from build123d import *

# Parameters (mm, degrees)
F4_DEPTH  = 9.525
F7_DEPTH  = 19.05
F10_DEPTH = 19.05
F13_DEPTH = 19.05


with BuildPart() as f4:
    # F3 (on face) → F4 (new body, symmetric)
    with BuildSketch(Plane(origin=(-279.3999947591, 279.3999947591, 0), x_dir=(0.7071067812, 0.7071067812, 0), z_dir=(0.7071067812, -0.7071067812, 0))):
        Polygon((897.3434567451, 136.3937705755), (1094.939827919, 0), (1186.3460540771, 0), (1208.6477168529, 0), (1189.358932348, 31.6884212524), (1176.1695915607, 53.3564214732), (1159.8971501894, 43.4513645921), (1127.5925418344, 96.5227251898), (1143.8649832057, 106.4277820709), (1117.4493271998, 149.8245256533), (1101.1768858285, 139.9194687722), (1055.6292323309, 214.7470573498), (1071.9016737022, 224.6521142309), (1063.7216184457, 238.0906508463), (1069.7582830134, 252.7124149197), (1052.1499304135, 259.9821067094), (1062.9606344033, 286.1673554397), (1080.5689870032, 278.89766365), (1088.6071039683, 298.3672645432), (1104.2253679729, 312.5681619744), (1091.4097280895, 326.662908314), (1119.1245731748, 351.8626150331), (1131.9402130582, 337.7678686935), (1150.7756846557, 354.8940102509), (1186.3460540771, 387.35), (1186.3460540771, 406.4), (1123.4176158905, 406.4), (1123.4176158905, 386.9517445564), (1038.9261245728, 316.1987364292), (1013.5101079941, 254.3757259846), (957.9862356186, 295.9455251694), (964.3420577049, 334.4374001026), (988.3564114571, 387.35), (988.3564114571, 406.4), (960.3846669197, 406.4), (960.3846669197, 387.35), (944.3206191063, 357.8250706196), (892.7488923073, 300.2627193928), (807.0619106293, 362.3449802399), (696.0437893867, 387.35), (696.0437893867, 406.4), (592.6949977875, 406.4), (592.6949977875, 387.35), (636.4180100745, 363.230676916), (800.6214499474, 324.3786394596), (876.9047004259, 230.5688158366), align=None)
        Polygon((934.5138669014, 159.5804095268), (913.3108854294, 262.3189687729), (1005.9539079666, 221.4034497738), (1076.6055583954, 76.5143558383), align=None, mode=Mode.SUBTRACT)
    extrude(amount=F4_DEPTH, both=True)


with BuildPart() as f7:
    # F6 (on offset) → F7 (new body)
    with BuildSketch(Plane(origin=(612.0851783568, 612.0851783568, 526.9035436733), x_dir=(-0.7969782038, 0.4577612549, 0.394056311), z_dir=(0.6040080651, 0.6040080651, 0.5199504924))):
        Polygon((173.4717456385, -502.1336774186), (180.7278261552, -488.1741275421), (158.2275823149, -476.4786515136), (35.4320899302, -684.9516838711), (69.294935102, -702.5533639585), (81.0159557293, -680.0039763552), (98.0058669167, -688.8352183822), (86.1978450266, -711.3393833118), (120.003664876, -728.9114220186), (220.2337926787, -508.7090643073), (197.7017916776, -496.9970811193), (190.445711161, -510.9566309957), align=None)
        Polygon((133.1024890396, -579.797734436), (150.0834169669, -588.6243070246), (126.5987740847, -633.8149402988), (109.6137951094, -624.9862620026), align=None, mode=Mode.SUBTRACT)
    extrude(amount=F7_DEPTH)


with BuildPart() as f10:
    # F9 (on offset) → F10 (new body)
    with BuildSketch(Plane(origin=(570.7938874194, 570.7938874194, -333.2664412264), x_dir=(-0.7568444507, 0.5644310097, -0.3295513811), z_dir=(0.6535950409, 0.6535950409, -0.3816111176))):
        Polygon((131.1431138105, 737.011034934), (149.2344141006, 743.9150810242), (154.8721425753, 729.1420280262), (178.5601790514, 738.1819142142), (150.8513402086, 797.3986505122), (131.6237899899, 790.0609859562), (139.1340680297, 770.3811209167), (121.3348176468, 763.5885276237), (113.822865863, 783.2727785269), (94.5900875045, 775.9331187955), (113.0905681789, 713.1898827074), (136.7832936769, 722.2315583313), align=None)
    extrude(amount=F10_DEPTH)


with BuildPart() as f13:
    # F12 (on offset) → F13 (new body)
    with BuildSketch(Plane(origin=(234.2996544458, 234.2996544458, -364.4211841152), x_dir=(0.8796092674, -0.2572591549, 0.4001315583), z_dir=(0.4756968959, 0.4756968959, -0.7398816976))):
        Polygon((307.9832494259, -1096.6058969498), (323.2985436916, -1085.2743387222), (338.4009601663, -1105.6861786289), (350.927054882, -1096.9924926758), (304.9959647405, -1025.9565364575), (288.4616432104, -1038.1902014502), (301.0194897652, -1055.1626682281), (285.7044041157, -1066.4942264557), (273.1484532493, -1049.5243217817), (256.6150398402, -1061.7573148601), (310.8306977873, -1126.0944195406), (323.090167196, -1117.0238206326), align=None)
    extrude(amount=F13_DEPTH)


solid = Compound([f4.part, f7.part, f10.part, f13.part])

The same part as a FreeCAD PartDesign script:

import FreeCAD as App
import Part
import Sketcher

V = App.Vector
Q = App.Units.Quantity


def add_polygon(sketch, points):
    """Adds a closed chain of lines whose ends are joined by coincident constraints."""
    first, n = sketch.GeometryCount, len(points)
    for a, b in zip(points, points[1:] + points[:1]):
        sketch.addGeometry(Part.LineSegment(App.Vector(*a, 0), App.Vector(*b, 0)), False)
    for i in range(n):
        sketch.addConstraint(Sketcher.Constraint("Coincident", first + i, 2, first + (i + 1) % n, 1))

doc = App.newDocument("Part")
params = doc.addObject("Spreadsheet::Sheet", "Params")
for row, (alias, value) in enumerate([
    ("sketch1_height", "0.75 in"),
    ("sketch1_length", "0.75 in"),
    ("pad1_length", "0.75 in"),
    ("sketch2_length", "1.5 in"),
    ("pad2_length", "0.75 in"),
    ("pad3_length", "0.75 in"),
    ("pad4_length", "0.75 in"),
], start=1):
    params.set(f"A{row}", alias)
    params.set(f"B{row}", "=" + value)
    params.setAlias(f"B{row}", alias)

body = doc.addObject("PartDesign::Body", "Body")

# Sketch on an angled plane
sketch1 = body.newObject("Sketcher::SketchObject", "Sketch")
sketch1.Placement = App.Placement(V(-279.399995, 279.399995, 0), App.Rotation(V(0.707106781, 0.707106781, 0), V(0, 0, 0.999999999), V(0.707106781, -0.707106781, 0), "ZXY"))
add_polygon(sketch1, [(897, 136), (1095, 0), (1209, 0), (1189, 32), (1176, 53), (1160, 43), (1128, 97), (1144, 106), (1117, 150), (1101, 140), (1056, 215), (1072, 225), (1064, 238), (1070, 253), (1052, 260), (1063, 286), (1081, 279), (1089, 298), (1104, 313), (1091, 327), (1119, 352), (1132, 338), (1151, 355), (1186, 387), (1186, 406), (1123, 406), (1123, 387), (1039, 316), (1014, 254), (958, 296), (964, 334), (988, 387), (988, 406), (960, 406), (960, 387), (944, 358), (893, 300), (807, 362), (696, 387), (696, 406), (593, 406), (593, 387), (636, 363), (801, 324), (877, 231)])  # lines 0-44
add_polygon(sketch1, [(1077, 77), (935, 160), (913, 262), (1006, 221)])  # lines 45-48
sketch1.addConstraint([
    Sketcher.Constraint("Horizontal", 1),
    Sketcher.Constraint("Vertical", 23),
    Sketcher.Constraint("Horizontal", 24),
    Sketcher.Constraint("Vertical", 25),
    Sketcher.Constraint("Vertical", 31),
    Sketcher.Constraint("Horizontal", 32),
    Sketcher.Constraint("Vertical", 33),
    Sketcher.Constraint("Vertical", 38),
    Sketcher.Constraint("Horizontal", 39),
    Sketcher.Constraint("Vertical", 40),
    Sketcher.Constraint("PointOnObject", 0, 2, -1),
    Sketcher.Constraint("Parallel", 2, 3),
    Sketcher.Constraint("Perpendicular", 3, 4),
    Sketcher.Constraint("Perpendicular", 4, 5),
    Sketcher.Constraint("Perpendicular", 5, 6),
    Sketcher.Constraint("Perpendicular", 6, 7),
    Sketcher.Constraint("Perpendicular", 7, 8),
    Sketcher.Constraint("Perpendicular", 8, 9),
    Sketcher.Constraint("Perpendicular", 9, 10),
    Sketcher.Constraint("Perpendicular", 10, 11),
    Sketcher.Constraint("Perpendicular", 12, 13),
    Sketcher.Constraint("Perpendicular", 13, 14),
    Sketcher.Constraint("Perpendicular", 14, 15),
    Sketcher.Constraint("Perpendicular", 15, 16),
    Sketcher.Constraint("Perpendicular", 17, 18),
    Sketcher.Constraint("Perpendicular", 18, 19),
    Sketcher.Constraint("Perpendicular", 19, 20),
    Sketcher.Constraint("Perpendicular", 20, 21),
    Sketcher.Constraint("Horizontal", 22, 2, 30, 2),
    Sketcher.Constraint("Horizontal", 24, 2, 31, 2),
    Sketcher.Constraint("Horizontal", 30, 2, 33, 2),
    Sketcher.Constraint("Horizontal", 33, 2, 37, 2),
    Sketcher.Constraint("Horizontal", 32, 2, 38, 2),
    Sketcher.Constraint("Horizontal", 37, 2, 40, 2),
    Sketcher.Constraint("Equal", 4, 6),
    Sketcher.Constraint("Equal", 6, 8),
    Sketcher.Constraint("Equal", 8, 10),
    Sketcher.Constraint("Equal", 10, 13),
    Sketcher.Constraint("Equal", 13, 15),
    Sketcher.Constraint("Equal", 15, 18),
    Sketcher.Constraint("Equal", 18, 20),
    Sketcher.Constraint("DistanceY", -1, 1, 23, 2, Q("16 in")),
    Sketcher.Constraint("DistanceY", 23, 1, 23, 2, Q("0.75 in")),
    Sketcher.Constraint("Distance", 4, Q("0.75 in")),
    Sketcher.Constraint("DistanceX", 12, 2, 7, 2, Q("1.8776002 in")),
    Sketcher.Constraint("DistanceY", 43, 2, 42, 2, Q("3.6933001 in")),
    Sketcher.Constraint("DistanceY", 47, 2, 10, 2, Q("0.1279002 in")),
    Sketcher.Constraint("Distance", 48, Q("161.1971 mm")),
    Sketcher.Constraint("DistanceX", 1, 1, 1, 2, Q("113.707889 mm")),
    Sketcher.Constraint("DistanceX", 24, 2, 24, 1, Q("62.928438 mm")),
    Sketcher.Constraint("DistanceX", 39, 2, 39, 1, Q("103.348792 mm")),
    Sketcher.Constraint("DistanceY", -1, 1, 29, 2, Q("334.4374 mm")),
    Sketcher.Constraint("DistanceX", -1, 1, 43, 2, Q("876.9047 mm")),
    Sketcher.Constraint("DistanceY", 2, 2, 3, 2, Q("21.668 mm")),
    Sketcher.Constraint("DistanceY", 5, 2, 7, 2, Q("53.3018 mm")),
    Sketcher.Constraint("DistanceY", 10, 2, 12, 2, Q("28.060301 mm")),
    Sketcher.Constraint("DistanceX", 13, 2, 9, 2, Q("3.479302 mm")),
    Sketcher.Constraint("DistanceY", 9, 2, 14, 2, Q("71.420298 mm")),
    Sketcher.Constraint("DistanceY", 15, 2, 16, 2, Q("19.469601 mm")),
    Sketcher.Constraint("DistanceY", 15, 2, 17, 2, Q("33.670498 mm")),
    Sketcher.Constraint("DistanceY", 18, 2, 21, 2, Q("28.231102 mm")),
    Sketcher.Constraint("DistanceY", 27, 2, 28, 2, Q("41.569799 mm")),
    Sketcher.Constraint("DistanceX", 28, 2, 14, 2, Q("104.974399 mm")),
    Sketcher.Constraint("DistanceX", 41, 2, 36, 2, Q("170.6439 mm")),
    Sketcher.Constraint("DistanceY", 46, 2, 34, 2, Q("95.506102 mm")),
    Sketcher.Constraint("DistanceX", 47, 2, 27, 2, Q("7.5562 mm")),
    Sketcher.Constraint("DistanceY", 47, 2, 11, 2, Q("16.687201 mm")),
    Sketcher.Constraint("Distance", 0, Q("240.099118 mm")),
    Sketcher.Constraint("Distance", 2, Q("37.097348 mm")),
    Sketcher.Constraint("Distance", 3, Q("25.366532 mm")),
    Sketcher.Constraint("Distance", 5, Q("62.130162 mm")),
    Sketcher.Constraint("Distance", 19, Q("37.458482 mm")),
    Sketcher.Constraint("Distance", 21, Q("25.45741 mm")),
    Sketcher.Constraint("Distance", 26, Q("110.203449 mm")),
    Sketcher.Constraint("Distance", 35, Q("77.285621 mm")),
    Sketcher.Constraint("Distance", 37, Q("113.799272 mm")),
    Sketcher.Constraint("Distance", 44, Q("96.367432 mm")),
    Sketcher.Constraint("Distance", 46, Q("104.90366 mm")),
    Sketcher.Constraint("DistanceX", 32, 2, 32, 1, Q("27.971745 mm")),
    Sketcher.Constraint("DistanceY", 25, 2, 25, 1, Q("19.448255 mm")),
    Sketcher.Constraint("DistanceX", -1, 1, 2, 2, Q("1189.358932 mm")),
    Sketcher.Constraint("DistanceX", -1, 1, 30, 2, Q("988.356411 mm")),
    Sketcher.Constraint("DistanceX", -1, 1, 34, 2, Q("944.320619 mm")),
    Sketcher.Constraint("DistanceY", -1, 1, 34, 2, Q("357.82507 mm")),
    Sketcher.Constraint("DistanceX", -1, 1, 35, 2, Q("892.748892 mm")),
    Sketcher.Constraint("DistanceX", -1, 1, 36, 2, Q("807.06191 mm")),
    Sketcher.Constraint("DistanceY", -1, 1, 36, 2, Q("362.34498 mm")),
    Sketcher.Constraint("DistanceX", -1, 1, 42, 2, Q("800.62145 mm")),
    Sketcher.Constraint("DistanceY", -1, 1, 42, 2, Q("324.378639 mm")),
    Sketcher.Constraint("DistanceY", -1, 1, 45, 2, Q("159.580409 mm")),
    Sketcher.Constraint("DistanceX", 21, 2, 22, 2, Q("35.570369 mm")),
    Sketcher.Constraint("DistanceX", 26, 2, 14, 2, Q("24.03451 mm")),
    Sketcher.Constraint("DistanceY", 27, 2, 13, 2, Q("5.606381 mm")),
    Sketcher.Constraint("DistanceX", 27, 2, 11, 2, Q("50.21151 mm")),
    Sketcher.Constraint("DistanceX", 29, 2, 27, 2, Q("49.16805 mm")),
    Sketcher.Constraint("DistanceX", 44, 2, 45, 2, Q("37.17041 mm")),
    Sketcher.Constraint("DistanceY", 48, 2, 5, 2, Q("20.008369 mm")),
    Sketcher.Constraint("Distance", 41, Q("49.934392 mm")),
])
sketch1.setExpression("Constraints[91]", "Params.sketch1_height")
sketch1.setExpression("Constraints[92]", "Params.sketch1_length")
pad1 = body.newObject("PartDesign::Pad", "Pad")
pad1.Profile = sketch1
pad1.setExpression("Length", "Params.pad1_length")
pad1.Midplane = True
body2 = doc.addObject("PartDesign::Body", "Body001")

# Sketch on an angled plane
sketch2 = body2.newObject("Sketcher::SketchObject", "Sketch001")
sketch2.Placement = App.Placement(V(612.085178, 612.085178, 526.903544), App.Rotation(V(-0.796978204, 0.457761255, 0.394056311), V(0, -0.652402399, 0.757872753), V(0.604008065, 0.604008065, 0.519950492), "ZXY"))
add_polygon(sketch2, [(173, -502), (181, -488), (158, -476), (35, -685), (69, -703), (81, -680), (98, -689), (86, -711), (120, -729), (220, -509), (198, -497), (190, -511)])  # lines 0-11
add_polygon(sketch2, [(110, -625), (133, -580), (150, -589), (127, -634)])  # lines 12-15
sketch2.addConstraint([
    Sketcher.Constraint("Perpendicular", 0, 1),
    Sketcher.Constraint("Parallel", 1, 3),
    Sketcher.Constraint("Perpendicular", 3, 4),
    Sketcher.Constraint("Perpendicular", 4, 5),
    Sketcher.Constraint("Parallel", 5, 7),
    Sketcher.Constraint("Parallel", 7, 9),
    Sketcher.Constraint("Perpendicular", 9, 10),
    Sketcher.Constraint("Perpendicular", 10, 11),
    Sketcher.Constraint("Perpendicular", 11, 12),
    Sketcher.Constraint("Perpendicular", 12, 13),
    Sketcher.Constraint("Parallel", 13, 15),
    Sketcher.Constraint("Equal", 0, 10),
    Sketcher.Constraint("Distance", 7, Q("1.5 in")),
    Sketcher.Constraint("Distance", 0, Q("0.6194 in")),
    Sketcher.Constraint("DistanceY", 7, 2, -1, 1, Q("28.6973001 in")),
    Sketcher.Constraint("DistanceX", 15, 2, 14, 2, Q("0.6687 in")),
    Sketcher.Constraint("Distance", 8, Q("241.940399 mm")),
    Sketcher.Constraint("DistanceY", 6, 2, 2, 2, Q("26.387699 mm")),
    Sketcher.Constraint("DistanceX", 9, 2, 8, 2, Q("22.532001 mm")),
    Sketcher.Constraint("Distance", 3, Q("38.164269 mm")),
    Sketcher.Constraint("Distance", 4, Q("25.413721 mm")),
    Sketcher.Constraint("Distance", 6, Q("25.41391 mm")),
    Sketcher.Constraint("Distance", 11, Q("19.130081 mm")),
    Sketcher.Constraint("Distance", 13, Q("19.137928 mm")),
    Sketcher.Constraint("DistanceY", 1, 2, -1, 1, Q("476.478651 mm")),
    Sketcher.Constraint("DistanceX", -1, 1, 2, 2, Q("35.43209 mm")),
    Sketcher.Constraint("DistanceY", 5, 2, -1, 1, Q("688.835218 mm")),
    Sketcher.Constraint("DistanceX", -1, 1, 9, 2, Q("197.701792 mm")),
    Sketcher.Constraint("DistanceY", 9, 2, -1, 1, Q("496.997081 mm")),
    Sketcher.Constraint("DistanceX", -1, 1, 12, 2, Q("133.102489 mm")),
    Sketcher.Constraint("DistanceY", 14, 2, -1, 1, Q("633.81494 mm")),
    Sketcher.Constraint("DistanceY", 13, 2, 11, 2, Q("86.49063 mm")),
])
sketch2.setExpression("Constraints[28]", "Params.sketch2_length")
pad2 = body2.newObject("PartDesign::Pad", "Pad001")
pad2.Profile = sketch2
pad2.setExpression("Length", "Params.pad2_length")
body3 = doc.addObject("PartDesign::Body", "Body002")

# Sketch on an angled plane
sketch3 = body3.newObject("Sketcher::SketchObject", "Sketch002")
sketch3.Placement = App.Placement(V(570.793887, 570.793887, -333.266441), App.Rotation(V(-0.756844451, 0.56443101, -0.329551381), V(0, 0.504213405, 0.863579089), V(0.653595041, 0.653595041, -0.381611118), "ZXY"))
add_polygon(sketch3, [(131, 737), (149, 744), (155, 729), (179, 738), (151, 797), (132, 790), (139, 770), (121, 764), (114, 783), (95, 776), (113, 713), (137, 722)])  # lines 0-11
sketch3.addConstraint([
    Sketcher.Constraint("Perpendicular", 0, 1),
    Sketcher.Constraint("Perpendicular", 1, 2),
    Sketcher.Constraint("Parallel", 2, 4),
    Sketcher.Constraint("Perpendicular", 4, 5),
    Sketcher.Constraint("Perpendicular", 5, 6),
    Sketcher.Constraint("Perpendicular", 6, 7),
    Sketcher.Constraint("Perpendicular", 7, 8),
    Sketcher.Constraint("Parallel", 8, 10),
    Sketcher.Constraint("Perpendicular", 10, 11),
    Sketcher.Constraint("Distance", 5, Q("0.8293 in")),
    Sketcher.Constraint("Distance", 10, Q("0.9984 in")),
    Sketcher.Constraint("Distance", 11, Q("0.6228 in")),
    Sketcher.Constraint("DistanceX", 1, 2, 2, 2, Q("0.9325999 in")),
    Sketcher.Constraint("DistanceX", 8, 2, 5, 2, Q("1.7537 in")),
    Sketcher.Constraint("DistanceY", 1, 2, 6, 2, Q("34.4465 mm")),
    Sketcher.Constraint("DistanceY", 9, 2, 0, 2, Q("30.725198 mm")),
    Sketcher.Constraint("DistanceX", 9, 2, 5, 2, Q("26.0435 mm")),
    Sketcher.Constraint("DistanceX", 11, 2, 0, 2, Q("18.0913 mm")),
    Sketcher.Constraint("Distance", 3, Q("65.378908 mm")),
    Sketcher.Constraint("DistanceY", -1, 1, 1, 2, Q("729.142029 mm")),
    Sketcher.Constraint("DistanceX", -1, 1, 2, 2, Q("178.560179 mm")),
    Sketcher.Constraint("DistanceX", -1, 1, 3, 2, Q("150.85134 mm")),
    Sketcher.Constraint("DistanceX", -1, 1, 4, 2, Q("131.62379 mm")),
    Sketcher.Constraint("DistanceY", -1, 1, 7, 2, Q("783.27278 mm")),
])
pad3 = body3.newObject("PartDesign::Pad", "Pad002")
pad3.Profile = sketch3
pad3.setExpression("Length", "Params.pad3_length")
body4 = doc.addObject("PartDesign::Body", "Body003")

# Sketch on an angled plane
sketch4 = body4.newObject("Sketcher::SketchObject", "Sketch003")
sketch4.Placement = App.Placement(V(234.299654, 234.299654, -364.421184), App.Rotation(V(0.879609267, -0.257259155, 0.400131558), V(0, -0.841148138, -0.54080478), V(0.475696896, 0.475696896, -0.739881698), "ZXY"))
add_polygon(sketch4, [(308, -1097), (323, -1085), (338, -1106), (351, -1097), (305, -1026), (288, -1038), (301, -1055), (286, -1066), (273, -1050), (257, -1062), (311, -1126), (323, -1117)])  # lines 0-11
sketch4.addConstraint([
    Sketcher.Constraint("Perpendicular", 0, 1),
    Sketcher.Constraint("Perpendicular", 4, 5),
    Sketcher.Constraint("Perpendicular", 5, 6),
    Sketcher.Constraint("Perpendicular", 6, 7),
    Sketcher.Constraint("Perpendicular", 7, 8),
    Sketcher.Constraint("Perpendicular", 1, 10),
    Sketcher.Constraint("Perpendicular", 10, 11),
    Sketcher.Constraint("Distance", 7, Q("0.8311 in")),
    Sketcher.Constraint("Distance", 2, Q("15.247401 mm")),
    Sketcher.Constraint("DistanceY", 4, 2, -1, 1, Q("1038.190201 mm")),
    Sketcher.Constraint("DistanceX", 4, 2, 0, 2, Q("34.8369 mm")),
    Sketcher.Constraint("DistanceY", 9, 2, 10, 2, Q("9.070599 mm")),
    Sketcher.Constraint("Distance", 1, Q("25.391459 mm")),
    Sketcher.Constraint("Distance", 4, Q("20.568091 mm")),
    Sketcher.Constraint("Distance", 8, Q("20.566961 mm")),
    Sketcher.Constraint("Distance", 9, Q("84.13442 mm")),
    Sketcher.Constraint("DistanceY", 0, 2, -1, 1, Q("1085.274339 mm")),
    Sketcher.Constraint("DistanceX", -1, 1, 1, 2, Q("338.40096 mm")),
    Sketcher.Constraint("DistanceY", 1, 2, -1, 1, Q("1105.686179 mm")),
    Sketcher.Constraint("DistanceX", -1, 1, 5, 2, Q("301.01949 mm")),
    Sketcher.Constraint("DistanceY", 5, 2, -1, 1, Q("1055.162668 mm")),
    Sketcher.Constraint("DistanceY", 7, 2, -1, 1, Q("1049.524322 mm")),
    Sketcher.Constraint("DistanceY", 9, 2, -1, 1, Q("1126.094419 mm")),
    Sketcher.Constraint("DistanceX", 0, 2, 2, 2, Q("27.628511 mm")),
])
pad4 = body4.newObject("PartDesign::Pad", "Pad003")
pad4.Profile = sketch4
pad4.setExpression("Length", "Params.pad4_length")

doc.recompute()
